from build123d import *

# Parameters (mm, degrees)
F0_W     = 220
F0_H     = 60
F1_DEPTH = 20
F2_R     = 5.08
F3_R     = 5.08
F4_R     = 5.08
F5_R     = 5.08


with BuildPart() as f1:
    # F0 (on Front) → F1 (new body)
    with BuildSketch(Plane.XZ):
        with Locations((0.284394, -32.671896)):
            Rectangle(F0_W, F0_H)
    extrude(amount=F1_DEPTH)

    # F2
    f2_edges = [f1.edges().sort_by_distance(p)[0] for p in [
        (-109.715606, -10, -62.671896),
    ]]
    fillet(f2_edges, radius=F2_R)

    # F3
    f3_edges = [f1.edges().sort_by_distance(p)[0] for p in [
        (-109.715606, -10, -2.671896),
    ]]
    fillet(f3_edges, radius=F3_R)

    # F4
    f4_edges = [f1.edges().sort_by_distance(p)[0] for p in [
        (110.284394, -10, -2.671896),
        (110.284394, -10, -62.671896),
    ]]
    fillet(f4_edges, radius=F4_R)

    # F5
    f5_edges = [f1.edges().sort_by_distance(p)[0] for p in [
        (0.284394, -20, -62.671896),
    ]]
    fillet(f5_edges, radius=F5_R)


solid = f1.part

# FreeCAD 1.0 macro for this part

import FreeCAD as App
import Part
import Sketcher
Q = App.Units.Quantity


def edges_at(feature, points):
    """Names of the edges that pass closest to the given points."""
    edges = feature.Shape.Edges
    near = lambda p: min(range(len(edges)), key=lambda i: edges[i].distToShape(Part.Vertex(*p))[0])
    return sorted({f"Edge{near(p) + 1}" for p in points})

doc = App.newDocument("Part")
params = doc.addObject("Spreadsheet::Sheet", "Params")
for row, (alias, value) in enumerate([
    ("sketch1_width", "220 mm"),
    ("sketch1_height", "60 mm"),
    ("pad1_length", "20 mm"),
    ("fillet_radius", "5.08 mm"),
    ("fillet2_radius", "5.08 mm"),
    ("fillet3_radius", "5.08 mm"),
    ("fillet4_radius", "5.08 mm"),
], start=1):
    params.set(f"A{row}", alias)
    params.set(f"B{row}", "=" + value)
    params.setAlias(f"B{row}", alias)

body = doc.addObject("PartDesign::Body", "Body")

# Sketch on XZ plane
sketch1 = doc.addObject("Sketcher::SketchObject", "Sketch")
body.addObject(sketch1)
sketch1.AttachmentSupport = (doc.XZ_Plane, [""])
sketch1.MapMode = "FlatFace"
sketch1.addGeometry(Part.LineSegment(App.Vector(-110, -3, 0), App.Vector(-110, -63, 0)), False)
sketch1.addGeometry(Part.LineSegment(App.Vector(-110, -63, 0), App.Vector(110, -63, 0)), False)
sketch1.addGeometry(Part.LineSegment(App.Vector(110, -63, 0), App.Vector(110, -3, 0)), False)
sketch1.addGeometry(Part.LineSegment(App.Vector(110, -3, 0), App.Vector(-110, -3, 0)), False)
sketch1.addConstraint(Sketcher.Constraint("Coincident", 0, 2, 1, 1))
sketch1.addConstraint(Sketcher.Constraint("Coincident", 1, 2, 2, 1))
sketch1.addConstraint(Sketcher.Constraint("Coincident", 2, 2, 3, 1))
sketch1.addConstraint(Sketcher.Constraint("Coincident", 3, 2, 0, 1))
sketch1.addConstraint(Sketcher.Constraint("Vertical", 0))
sketch1.addConstraint(Sketcher.Constraint("Horizontal", 1))
sketch1.addConstraint(Sketcher.Constraint("Vertical", 2))
sketch1.addConstraint(Sketcher.Constraint("Horizontal", 3))
sketch1.addConstraint(Sketcher.Constraint("DistanceX", 1, 1, 1, 2, Q("220 mm")))
sketch1.addConstraint(Sketcher.Constraint("DistanceY", 0, 2, 0, 1, Q("60 mm")))
sketch1.addConstraint(Sketcher.Constraint("DistanceX", 0, 2, -1, 1, Q("109.715606 mm")))
sketch1.addConstraint(Sketcher.Constraint("DistanceY", 0, 2, -1, 1, Q("62.671896 mm")))
sketch1.setExpression("Constraints[8]", "Params.sketch1_width")
sketch1.setExpression("Constraints[9]", "Params.sketch1_height")
pad1 = doc.addObject("PartDesign::Pad", "Pad")
body.addObject(pad1)
pad1.Profile = sketch1
pad1.setExpression("Length", "Params.pad1_length")
doc.recompute()

fillet = doc.addObject("PartDesign::Fillet", "Fillet")
body.addObject(fillet)
fillet.Base = (pad1, edges_at(pad1, [(-109.716, -10, -62.672)]))
fillet.setExpression("Radius", "Params.fillet_radius")
doc.recompute()

fillet2 = doc.addObject("PartDesign::Fillet", "Fillet001")
body.addObject(fillet2)
fillet2.Base = (fillet, edges_at(fillet, [(-109.716, -10, -2.672)]))
fillet2.setExpression("Radius", "Params.fillet2_radius")
doc.recompute()

fillet3 = doc.addObject("PartDesign::Fillet", "Fillet002")
body.addObject(fillet3)
fillet3.Base = (fillet2, edges_at(fillet2, [(110.284, -10, -2.672), (110.284, -10, -62.672)]))
fillet3.setExpression("Radius", "Params.fillet3_radius")
doc.recompute()

fillet4 = doc.addObject("PartDesign::Fillet", "Fillet003")
body.addObject(fillet4)
fillet4.Base = (fillet3, edges_at(fillet3, [(0.284, -20, -62.672)]))
fillet4.setExpression("Radius", "Params.fillet4_radius")

doc.recompute()
